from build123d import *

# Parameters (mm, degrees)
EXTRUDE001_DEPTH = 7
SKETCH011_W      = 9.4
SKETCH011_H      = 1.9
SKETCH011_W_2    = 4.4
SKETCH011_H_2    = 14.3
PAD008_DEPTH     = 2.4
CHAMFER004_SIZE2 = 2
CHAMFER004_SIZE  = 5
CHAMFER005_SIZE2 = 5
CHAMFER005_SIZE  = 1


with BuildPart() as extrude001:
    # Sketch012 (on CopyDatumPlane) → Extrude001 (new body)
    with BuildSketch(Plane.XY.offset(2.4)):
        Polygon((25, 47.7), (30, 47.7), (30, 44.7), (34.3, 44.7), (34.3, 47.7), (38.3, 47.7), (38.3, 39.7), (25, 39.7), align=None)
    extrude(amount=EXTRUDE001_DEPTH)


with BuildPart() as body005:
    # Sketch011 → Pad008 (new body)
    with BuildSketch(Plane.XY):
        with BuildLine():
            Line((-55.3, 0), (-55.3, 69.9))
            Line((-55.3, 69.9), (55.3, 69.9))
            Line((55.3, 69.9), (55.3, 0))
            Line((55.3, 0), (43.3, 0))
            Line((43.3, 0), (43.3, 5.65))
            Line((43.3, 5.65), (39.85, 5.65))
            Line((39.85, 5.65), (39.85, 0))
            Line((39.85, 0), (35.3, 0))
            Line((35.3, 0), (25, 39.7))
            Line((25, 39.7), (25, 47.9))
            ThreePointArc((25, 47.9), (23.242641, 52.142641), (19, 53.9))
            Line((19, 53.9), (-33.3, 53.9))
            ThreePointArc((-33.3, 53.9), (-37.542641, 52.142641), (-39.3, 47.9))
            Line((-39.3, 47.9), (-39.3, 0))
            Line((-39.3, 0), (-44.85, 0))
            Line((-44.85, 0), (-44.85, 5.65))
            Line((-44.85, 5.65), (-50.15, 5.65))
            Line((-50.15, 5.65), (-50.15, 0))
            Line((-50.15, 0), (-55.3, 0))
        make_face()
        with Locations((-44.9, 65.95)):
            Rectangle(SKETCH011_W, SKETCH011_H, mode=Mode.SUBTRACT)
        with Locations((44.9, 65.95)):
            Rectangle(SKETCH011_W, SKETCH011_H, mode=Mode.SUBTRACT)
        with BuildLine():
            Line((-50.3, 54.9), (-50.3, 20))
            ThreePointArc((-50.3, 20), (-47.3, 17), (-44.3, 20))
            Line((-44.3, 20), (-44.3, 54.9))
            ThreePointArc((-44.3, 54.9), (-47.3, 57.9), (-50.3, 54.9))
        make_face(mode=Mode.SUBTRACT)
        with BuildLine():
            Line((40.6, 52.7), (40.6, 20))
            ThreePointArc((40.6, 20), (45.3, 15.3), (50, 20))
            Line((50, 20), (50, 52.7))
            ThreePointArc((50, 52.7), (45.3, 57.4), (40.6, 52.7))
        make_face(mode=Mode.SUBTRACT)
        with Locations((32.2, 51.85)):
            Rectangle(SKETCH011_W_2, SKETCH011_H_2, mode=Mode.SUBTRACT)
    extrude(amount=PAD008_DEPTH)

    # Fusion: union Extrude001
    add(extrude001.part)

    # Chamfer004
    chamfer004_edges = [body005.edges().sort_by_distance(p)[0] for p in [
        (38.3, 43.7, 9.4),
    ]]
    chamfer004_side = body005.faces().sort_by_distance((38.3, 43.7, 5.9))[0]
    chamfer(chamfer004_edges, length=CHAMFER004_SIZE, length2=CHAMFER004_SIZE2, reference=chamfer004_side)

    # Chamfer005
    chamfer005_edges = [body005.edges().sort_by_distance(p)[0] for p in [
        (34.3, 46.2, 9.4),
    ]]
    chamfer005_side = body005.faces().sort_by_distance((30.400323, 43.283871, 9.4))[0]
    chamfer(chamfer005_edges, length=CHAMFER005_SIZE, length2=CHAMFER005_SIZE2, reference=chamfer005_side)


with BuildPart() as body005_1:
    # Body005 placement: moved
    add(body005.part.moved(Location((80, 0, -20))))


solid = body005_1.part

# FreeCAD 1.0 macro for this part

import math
import FreeCAD as App
import Part
import Sketcher
from FreeCAD import Vector


def edges_at(feature, points):
    """Names of the edges that pass closest to the given points."""
    edges = feature.Shape.Edges
    near = lambda p: min(range(len(edges)), key=lambda i: edges[i].distToShape(Part.Vertex(*p))[0])
    return sorted({f"Edge{near(p) + 1}" for p in points})


def add_polygon(sketch, points):
    """Adds a closed chain of lines whose ends are joined by coincident constraints."""
    first, n = sketch.GeometryCount, len(points)
    for a, b in zip(points, points[1:] + points[:1]):
        sketch.addGeometry(Part.LineSegment(App.Vector(*a, 0), App.Vector(*b, 0)), False)
    for i in range(n):
        sketch.addConstraint(Sketcher.Constraint("Coincident", first + i, 2, first + (i + 1) % n, 1))

doc = App.newDocument("Part")
body = doc.addObject("PartDesign::Body", "Body")

# Sketch on XY plane
sketch1 = body.newObject("Sketcher::SketchObject", "Sketch")
sketch1.AttachmentSupport = (doc.getObject("XY_Plane"), [""])
sketch1.MapMode = "FlatFace"
sketch1.AttachmentOffset = App.Placement(Vector(0, 0, 2.4), App.Rotation())
add_polygon(sketch1, [(30, 47.7), (25, 47.7), (25, 39.7), (38.3, 39.7), (38.3, 47.7), (34.3, 47.7), (34.3, 44.7), (30, 44.7)])  # lines 0-7
sketch1.addConstraint([
    Sketcher.Constraint("Horizontal", 0),
    Sketcher.Constraint("Vertical", 1),
    Sketcher.Constraint("Horizontal", 2),
    Sketcher.Constraint("Vertical", 3),
    Sketcher.Constraint("Horizontal", 4),
    Sketcher.Constraint("Vertical", 5),
    Sketcher.Constraint("Horizontal", 6),
    Sketcher.Constraint("Vertical", 7),
    Sketcher.Constraint("Horizontal", 0, 2, 3, 2),
    Sketcher.Constraint("DistanceX", 0, 2, 0, 1, 5.0),
    Sketcher.Constraint("DistanceX", 4, 2, 4, 1, 4.0),
    Sketcher.Constraint("DistanceY", 1, 2, 1, 1, 8.0),
    Sketcher.Constraint("DistanceY", 5, 2, 5, 1, 3.0),
    Sketcher.Constraint("DistanceX", 2, 1, 2, 2, 13.3),
    Sketcher.Constraint("DistanceX", -1, 1, 0, 2, 25.0),
    Sketcher.Constraint("DistanceY", -1, 1, 0, 2, 47.7),
])
pad1 = body.newObject("PartDesign::Pad", "Pad")
pad1.Profile = sketch1
pad1.Length = 7
body2 = doc.addObject("PartDesign::Body", "Body001")

# Sketch on XY plane
sketch2 = body2.newObject("Sketcher::SketchObject", "Sketch001")
sketch2.AttachmentSupport = (doc.getObject("XY_Plane001"), [""])
sketch2.MapMode = "FlatFace"
sketch2.addGeometry(Part.LineSegment(Vector(-55.3, 69.9, 0), Vector(-55.3, 0, 0)), False)  # 0
sketch2.addGeometry(Part.LineSegment(Vector(-55.3, 0, 0), Vector(-50.1, 0, 0)), False)  # 1
sketch2.addGeometry(Part.LineSegment(Vector(-50.1, 0, 0), Vector(-50.1, 5.7, 0)), False)  # 2
sketch2.addGeometry(Part.LineSegment(Vector(-50.1, 5.7, 0), Vector(-44.9, 5.7, 0)), False)  # 3
sketch2.addGeometry(Part.LineSegment(Vector(-44.9, 5.7, 0), Vector(-44.9, 0, 0)), False)  # 4
sketch2.addGeometry(Part.LineSegment(Vector(-44.9, 0, 0), Vector(-39.3, 0, 0)), False)  # 5
sketch2.addGeometry(Part.LineSegment(Vector(-39.3, 0, 0), Vector(-39.3, 47.9, 0)), False)  # 6
sketch2.addGeometry(Part.ArcOfCircle(Part.Circle(Vector(-33.3, 47.9, 0), Vector(0, 0, 1), 6), math.radians(90), math.radians(180)), False)  # 7
sketch2.addGeometry(Part.LineSegment(Vector(-33.3, 53.9, 0), Vector(19, 53.9, 0)), False)  # 8
sketch2.addGeometry(Part.ArcOfCircle(Part.Circle(Vector(19, 47.9, 0), Vector(0, 0, 1), 6), math.radians(0), math.radians(90)), False)  # 9
sketch2.addGeometry(Part.LineSegment(Vector(25, 47.9, 0), Vector(25, 39.7, 0)), False)  # 10
sketch2.addGeometry(Part.LineSegment(Vector(25, 39.7, 0), Vector(35.3, 0, 0)), False)  # 11
sketch2.addGeometry(Part.LineSegment(Vector(35.3, 0, 0), Vector(39.9, 0, 0)), False)  # 12
sketch2.addGeometry(Part.LineSegment(Vector(39.9, 0, 0), Vector(39.9, 5.7, 0)), False)  # 13
sketch2.addGeometry(Part.LineSegment(Vector(39.9, 5.7, 0), Vector(43.3, 5.7, 0)), False)  # 14
sketch2.addGeometry(Part.LineSegment(Vector(43.3, 5.7, 0), Vector(43.3, 0, 0)), False)  # 15
sketch2.addGeometry(Part.LineSegment(Vector(43.3, 0, 0), Vector(55.3, 0, 0)), False)  # 16
sketch2.addGeometry(Part.LineSegment(Vector(55.3, 0, 0), Vector(55.3, 69.9, 0)), False)  # 17
sketch2.addGeometry(Part.LineSegment(Vector(55.3, 69.9, 0), Vector(-55.3, 69.9, 0)), False)  # 18
sketch2.addGeometry(Part.ArcOfCircle(Part.Circle(Vector(45.3, 52.7, 0), Vector(0, 0, 1), 4.7), math.radians(0), math.radians(180)), False)  # 19
sketch2.addGeometry(Part.LineSegment(Vector(50, 52.7, 0), Vector(50, 20, 0)), False)  # 20
sketch2.addGeometry(Part.ArcOfCircle(Part.Circle(Vector(45.3, 20, 0), Vector(0, 0, 1), 4.7), math.radians(180), math.radians(360)), False)  # 21
sketch2.addGeometry(Part.LineSegment(Vector(40.6, 20, 0), Vector(40.6, 52.7, 0)), False)  # 22
sketch2.addGeometry(Part.ArcOfCircle(Part.Circle(Vector(-47.3, 54.9, 0), Vector(0, 0, 1), 3), math.radians(0), math.radians(180)), False)  # 23
sketch2.addGeometry(Part.LineSegment(Vector(-44.3, 54.9, 0), Vector(-44.3, 20, 0)), False)  # 24
sketch2.addGeometry(Part.ArcOfCircle(Part.Circle(Vector(-47.3, 20, 0), Vector(0, 0, 1), 3), math.radians(180), math.radians(360)), False)  # 25
sketch2.addGeometry(Part.LineSegment(Vector(-50.3, 20, 0), Vector(-50.3, 54.9, 0)), False)  # 26
add_polygon(sketch2, [(30, 44.7), (30, 59), (34.4, 59), (34.4, 44.7)])  # lines 27-30
add_polygon(sketch2, [(40.2, 65), (40.2, 66.9), (49.6, 66.9), (49.6, 65)])  # lines 31-34
add_polygon(sketch2, [(-49.6, 65), (-49.6, 66.9), (-40.2, 66.9), (-40.2, 65)])  # lines 35-38
sketch2.addConstraint([
    Sketcher.Constraint("Coincident", 0, 2, 1, 1),
    Sketcher.Constraint("Coincident", 1, 2, 2, 1),
    Sketcher.Constraint("Coincident", 2, 2, 3, 1),
    Sketcher.Constraint("Coincident", 3, 2, 4, 1),
    Sketcher.Constraint("Coincident", 4, 2, 5, 1),
    Sketcher.Constraint("Coincident", 5, 2, 6, 1),
    Sketcher.Constraint("Tangent", 6, 2, 7, 2),
    Sketcher.Constraint("Tangent", 7, 1, 8, 1),
    Sketcher.Constraint("Tangent", 8, 2, 9, 2),
    Sketcher.Constraint("Tangent", 9, 1, 10, 1),
    Sketcher.Constraint("Coincident", 10, 2, 11, 1),
    Sketcher.Constraint("Coincident", 11, 2, 12, 1),
    Sketcher.Constraint("Coincident", 12, 2, 13, 1),
    Sketcher.Constraint("Coincident", 13, 2, 14, 1),
    Sketcher.Constraint("Coincident", 14, 2, 15, 1),
    Sketcher.Constraint("Coincident", 15, 2, 16, 1),
    Sketcher.Constraint("Coincident", 16, 2, 17, 1),
    Sketcher.Constraint("Coincident", 17, 2, 18, 1),
    Sketcher.Constraint("Coincident", 18, 2, 0, 1),
    Sketcher.Constraint("Tangent", 19, 1, 20, 1),
    Sketcher.Constraint("Tangent", 20, 2, 21, 2),
    Sketcher.Constraint("Tangent", 21, 1, 22, 1),
    Sketcher.Constraint("Tangent", 22, 2, 19, 2),
    Sketcher.Constraint("Tangent", 23, 1, 24, 1),
    Sketcher.Constraint("Tangent", 24, 2, 25, 2),
    Sketcher.Constraint("Tangent", 25, 1, 26, 1),
    Sketcher.Constraint("Tangent", 26, 2, 23, 2),
    Sketcher.Constraint("Vertical", 0),
    Sketcher.Constraint("Horizontal", 1),
    Sketcher.Constraint("Vertical", 2),
    Sketcher.Constraint("Horizontal", 3),
    Sketcher.Constraint("Vertical", 4),
    Sketcher.Constraint("Horizontal", 5),
    Sketcher.Constraint("Vertical", 6),
    Sketcher.Constraint("Horizontal", 8),
    Sketcher.Constraint("Vertical", 10),
    Sketcher.Constraint("Horizontal", 12),
    Sketcher.Constraint("Vertical", 13),
    Sketcher.Constraint("Horizontal", 14),
    Sketcher.Constraint("Vertical", 15),
    Sketcher.Constraint("Horizontal", 16),
    Sketcher.Constraint("Vertical", 17),
    Sketcher.Constraint("Horizontal", 18),
    Sketcher.Constraint("Vertical", 20),
    Sketcher.Constraint("Vertical", 22),
    Sketcher.Constraint("Vertical", 24),
    Sketcher.Constraint("Vertical", 26),
    Sketcher.Constraint("Vertical", 27),
    Sketcher.Constraint("Horizontal", 28),
    Sketcher.Constraint("Vertical", 29),
    Sketcher.Constraint("Horizontal", 30),
    Sketcher.Constraint("Vertical", 31),
    Sketcher.Constraint("Horizontal", 32),
    Sketcher.Constraint("Vertical", 33),
    Sketcher.Constraint("Horizontal", 34),
    Sketcher.Constraint("Vertical", 35),
    Sketcher.Constraint("Horizontal", 36),
    Sketcher.Constraint("Vertical", 37),
    Sketcher.Constraint("Horizontal", 38),
    Sketcher.Constraint("Equal", 7, 9),
    Sketcher.Constraint("Symmetric", 0, 2, 16, 2, -1, 1),
    Sketcher.Constraint("Symmetric", 32, 2, 35, 2, -2),
    Sketcher.Constraint("Symmetric", 34, 2, 37, 2, -2),
    Sketcher.Constraint("PointOnObject", 0, 2, -1),
    Sketcher.Constraint("PointOnObject", 4, 2, -1),
    Sketcher.Constraint("PointOnObject", 11, 2, -1),
    Sketcher.Constraint("Horizontal", 21, 3, 25, 3),
    Sketcher.Constraint("Horizontal", 3, 2, 13, 2),
    Sketcher.Constraint("Radius", 7, 5.999999),
    Sketcher.Constraint("Radius", 23, 3.0),
    Sketcher.Constraint("Radius", 19, 4.7),
    Sketcher.Constraint("DistanceX", 16, 1, 16, 2, 12.0),
    Sketcher.Constraint("DistanceX", 3, 1, 3, 2, 5.3),
    Sketcher.Constraint("DistanceX", 8, 1, 8, 2, 52.3),
    Sketcher.Constraint("DistanceX", 18, 2, 18, 1, 110.6),
    Sketcher.Constraint("DistanceX", 28, 1, 28, 2, 4.4),
    Sketcher.Constraint("DistanceX", 32, 1, 32, 2, 9.4),
    Sketcher.Constraint("DistanceY", 0, 2, 0, 1, 69.9),
    Sketcher.Constraint("DistanceY", 6, 1, 6, 2, 47.9),
    Sketcher.Constraint("DistanceY", 10, 2, 10, 1, 8.2),
    Sketcher.Constraint("DistanceY", 20, 2, 20, 1, 32.7),
    Sketcher.Constraint("DistanceY", 24, 2, 24, 1, 34.9),
    Sketcher.Constraint("DistanceY", 27, 1, 27, 2, 14.3),
    Sketcher.Constraint("DistanceY", 31, 1, 31, 2, 1.9),
    Sketcher.Constraint("DistanceX", -1, 1, 9, 3, 19.000001),
    Sketcher.Constraint("DistanceY", -1, 1, 21, 3, 20.0),
    Sketcher.Constraint("DistanceX", -1, 1, 19, 1, 50.0),
    Sketcher.Constraint("DistanceX", -1, 1, 27, 2, 30.0),
    Sketcher.Constraint("DistanceY", -1, 1, 27, 2, 59.0),
    Sketcher.Constraint("DistanceY", -1, 1, 33, 2, 65.0),
    Sketcher.Constraint("DistanceX", 23, 3, 7, 3, 13.999999),
    Sketcher.Constraint("DistanceX", 11, 2, 21, 3, 10.0),
    Sketcher.Constraint("DistanceX", 22, 2, 32, 2, 9.0),
    Sketcher.Constraint("DistanceX", 1, 1, 1, 2, 5.15),
    Sketcher.Constraint("DistanceX", 12, 1, 12, 2, 4.55),
    Sketcher.Constraint("DistanceY", 2, 1, 2, 2, 5.65),
])
pad2 = body2.newObject("PartDesign::Pad", "Pad001")
pad2.Profile = sketch2
pad2.Length = 2.4
doc.recompute()

boolean = body2.newObject("PartDesign::Boolean", "Boolean")
boolean.Type = "Fuse"
boolean.addObjects([body])
doc.recompute()

chamfer = body2.newObject("PartDesign::Chamfer", "Chamfer")
chamfer.Base = (boolean, edges_at(boolean, [(38.3, 43.7, 9.4)]))
chamfer.ChamferType = "Two distances"
chamfer.Size = 5
chamfer.Size2 = 2
doc.recompute()

chamfer2 = body2.newObject("PartDesign::Chamfer", "Chamfer001")
chamfer2.Base = (chamfer, edges_at(chamfer, [(34.3, 46.2, 9.4)]))
chamfer2.ChamferType = "Two distances"
chamfer2.Size = 1
chamfer2.Size2 = 5
body3 = doc.addObject("PartDesign::Body", "Body002")
doc.recompute()

body2.Placement = App.Placement(Vector(80, 0, -20), App.Rotation(Vector(0, 0, 1), 0))
boolean2 = body3.newObject("PartDesign::Boolean", "Boolean001")
boolean2.Type = "Fuse"
boolean2.addObjects([body2])

doc.recompute()
